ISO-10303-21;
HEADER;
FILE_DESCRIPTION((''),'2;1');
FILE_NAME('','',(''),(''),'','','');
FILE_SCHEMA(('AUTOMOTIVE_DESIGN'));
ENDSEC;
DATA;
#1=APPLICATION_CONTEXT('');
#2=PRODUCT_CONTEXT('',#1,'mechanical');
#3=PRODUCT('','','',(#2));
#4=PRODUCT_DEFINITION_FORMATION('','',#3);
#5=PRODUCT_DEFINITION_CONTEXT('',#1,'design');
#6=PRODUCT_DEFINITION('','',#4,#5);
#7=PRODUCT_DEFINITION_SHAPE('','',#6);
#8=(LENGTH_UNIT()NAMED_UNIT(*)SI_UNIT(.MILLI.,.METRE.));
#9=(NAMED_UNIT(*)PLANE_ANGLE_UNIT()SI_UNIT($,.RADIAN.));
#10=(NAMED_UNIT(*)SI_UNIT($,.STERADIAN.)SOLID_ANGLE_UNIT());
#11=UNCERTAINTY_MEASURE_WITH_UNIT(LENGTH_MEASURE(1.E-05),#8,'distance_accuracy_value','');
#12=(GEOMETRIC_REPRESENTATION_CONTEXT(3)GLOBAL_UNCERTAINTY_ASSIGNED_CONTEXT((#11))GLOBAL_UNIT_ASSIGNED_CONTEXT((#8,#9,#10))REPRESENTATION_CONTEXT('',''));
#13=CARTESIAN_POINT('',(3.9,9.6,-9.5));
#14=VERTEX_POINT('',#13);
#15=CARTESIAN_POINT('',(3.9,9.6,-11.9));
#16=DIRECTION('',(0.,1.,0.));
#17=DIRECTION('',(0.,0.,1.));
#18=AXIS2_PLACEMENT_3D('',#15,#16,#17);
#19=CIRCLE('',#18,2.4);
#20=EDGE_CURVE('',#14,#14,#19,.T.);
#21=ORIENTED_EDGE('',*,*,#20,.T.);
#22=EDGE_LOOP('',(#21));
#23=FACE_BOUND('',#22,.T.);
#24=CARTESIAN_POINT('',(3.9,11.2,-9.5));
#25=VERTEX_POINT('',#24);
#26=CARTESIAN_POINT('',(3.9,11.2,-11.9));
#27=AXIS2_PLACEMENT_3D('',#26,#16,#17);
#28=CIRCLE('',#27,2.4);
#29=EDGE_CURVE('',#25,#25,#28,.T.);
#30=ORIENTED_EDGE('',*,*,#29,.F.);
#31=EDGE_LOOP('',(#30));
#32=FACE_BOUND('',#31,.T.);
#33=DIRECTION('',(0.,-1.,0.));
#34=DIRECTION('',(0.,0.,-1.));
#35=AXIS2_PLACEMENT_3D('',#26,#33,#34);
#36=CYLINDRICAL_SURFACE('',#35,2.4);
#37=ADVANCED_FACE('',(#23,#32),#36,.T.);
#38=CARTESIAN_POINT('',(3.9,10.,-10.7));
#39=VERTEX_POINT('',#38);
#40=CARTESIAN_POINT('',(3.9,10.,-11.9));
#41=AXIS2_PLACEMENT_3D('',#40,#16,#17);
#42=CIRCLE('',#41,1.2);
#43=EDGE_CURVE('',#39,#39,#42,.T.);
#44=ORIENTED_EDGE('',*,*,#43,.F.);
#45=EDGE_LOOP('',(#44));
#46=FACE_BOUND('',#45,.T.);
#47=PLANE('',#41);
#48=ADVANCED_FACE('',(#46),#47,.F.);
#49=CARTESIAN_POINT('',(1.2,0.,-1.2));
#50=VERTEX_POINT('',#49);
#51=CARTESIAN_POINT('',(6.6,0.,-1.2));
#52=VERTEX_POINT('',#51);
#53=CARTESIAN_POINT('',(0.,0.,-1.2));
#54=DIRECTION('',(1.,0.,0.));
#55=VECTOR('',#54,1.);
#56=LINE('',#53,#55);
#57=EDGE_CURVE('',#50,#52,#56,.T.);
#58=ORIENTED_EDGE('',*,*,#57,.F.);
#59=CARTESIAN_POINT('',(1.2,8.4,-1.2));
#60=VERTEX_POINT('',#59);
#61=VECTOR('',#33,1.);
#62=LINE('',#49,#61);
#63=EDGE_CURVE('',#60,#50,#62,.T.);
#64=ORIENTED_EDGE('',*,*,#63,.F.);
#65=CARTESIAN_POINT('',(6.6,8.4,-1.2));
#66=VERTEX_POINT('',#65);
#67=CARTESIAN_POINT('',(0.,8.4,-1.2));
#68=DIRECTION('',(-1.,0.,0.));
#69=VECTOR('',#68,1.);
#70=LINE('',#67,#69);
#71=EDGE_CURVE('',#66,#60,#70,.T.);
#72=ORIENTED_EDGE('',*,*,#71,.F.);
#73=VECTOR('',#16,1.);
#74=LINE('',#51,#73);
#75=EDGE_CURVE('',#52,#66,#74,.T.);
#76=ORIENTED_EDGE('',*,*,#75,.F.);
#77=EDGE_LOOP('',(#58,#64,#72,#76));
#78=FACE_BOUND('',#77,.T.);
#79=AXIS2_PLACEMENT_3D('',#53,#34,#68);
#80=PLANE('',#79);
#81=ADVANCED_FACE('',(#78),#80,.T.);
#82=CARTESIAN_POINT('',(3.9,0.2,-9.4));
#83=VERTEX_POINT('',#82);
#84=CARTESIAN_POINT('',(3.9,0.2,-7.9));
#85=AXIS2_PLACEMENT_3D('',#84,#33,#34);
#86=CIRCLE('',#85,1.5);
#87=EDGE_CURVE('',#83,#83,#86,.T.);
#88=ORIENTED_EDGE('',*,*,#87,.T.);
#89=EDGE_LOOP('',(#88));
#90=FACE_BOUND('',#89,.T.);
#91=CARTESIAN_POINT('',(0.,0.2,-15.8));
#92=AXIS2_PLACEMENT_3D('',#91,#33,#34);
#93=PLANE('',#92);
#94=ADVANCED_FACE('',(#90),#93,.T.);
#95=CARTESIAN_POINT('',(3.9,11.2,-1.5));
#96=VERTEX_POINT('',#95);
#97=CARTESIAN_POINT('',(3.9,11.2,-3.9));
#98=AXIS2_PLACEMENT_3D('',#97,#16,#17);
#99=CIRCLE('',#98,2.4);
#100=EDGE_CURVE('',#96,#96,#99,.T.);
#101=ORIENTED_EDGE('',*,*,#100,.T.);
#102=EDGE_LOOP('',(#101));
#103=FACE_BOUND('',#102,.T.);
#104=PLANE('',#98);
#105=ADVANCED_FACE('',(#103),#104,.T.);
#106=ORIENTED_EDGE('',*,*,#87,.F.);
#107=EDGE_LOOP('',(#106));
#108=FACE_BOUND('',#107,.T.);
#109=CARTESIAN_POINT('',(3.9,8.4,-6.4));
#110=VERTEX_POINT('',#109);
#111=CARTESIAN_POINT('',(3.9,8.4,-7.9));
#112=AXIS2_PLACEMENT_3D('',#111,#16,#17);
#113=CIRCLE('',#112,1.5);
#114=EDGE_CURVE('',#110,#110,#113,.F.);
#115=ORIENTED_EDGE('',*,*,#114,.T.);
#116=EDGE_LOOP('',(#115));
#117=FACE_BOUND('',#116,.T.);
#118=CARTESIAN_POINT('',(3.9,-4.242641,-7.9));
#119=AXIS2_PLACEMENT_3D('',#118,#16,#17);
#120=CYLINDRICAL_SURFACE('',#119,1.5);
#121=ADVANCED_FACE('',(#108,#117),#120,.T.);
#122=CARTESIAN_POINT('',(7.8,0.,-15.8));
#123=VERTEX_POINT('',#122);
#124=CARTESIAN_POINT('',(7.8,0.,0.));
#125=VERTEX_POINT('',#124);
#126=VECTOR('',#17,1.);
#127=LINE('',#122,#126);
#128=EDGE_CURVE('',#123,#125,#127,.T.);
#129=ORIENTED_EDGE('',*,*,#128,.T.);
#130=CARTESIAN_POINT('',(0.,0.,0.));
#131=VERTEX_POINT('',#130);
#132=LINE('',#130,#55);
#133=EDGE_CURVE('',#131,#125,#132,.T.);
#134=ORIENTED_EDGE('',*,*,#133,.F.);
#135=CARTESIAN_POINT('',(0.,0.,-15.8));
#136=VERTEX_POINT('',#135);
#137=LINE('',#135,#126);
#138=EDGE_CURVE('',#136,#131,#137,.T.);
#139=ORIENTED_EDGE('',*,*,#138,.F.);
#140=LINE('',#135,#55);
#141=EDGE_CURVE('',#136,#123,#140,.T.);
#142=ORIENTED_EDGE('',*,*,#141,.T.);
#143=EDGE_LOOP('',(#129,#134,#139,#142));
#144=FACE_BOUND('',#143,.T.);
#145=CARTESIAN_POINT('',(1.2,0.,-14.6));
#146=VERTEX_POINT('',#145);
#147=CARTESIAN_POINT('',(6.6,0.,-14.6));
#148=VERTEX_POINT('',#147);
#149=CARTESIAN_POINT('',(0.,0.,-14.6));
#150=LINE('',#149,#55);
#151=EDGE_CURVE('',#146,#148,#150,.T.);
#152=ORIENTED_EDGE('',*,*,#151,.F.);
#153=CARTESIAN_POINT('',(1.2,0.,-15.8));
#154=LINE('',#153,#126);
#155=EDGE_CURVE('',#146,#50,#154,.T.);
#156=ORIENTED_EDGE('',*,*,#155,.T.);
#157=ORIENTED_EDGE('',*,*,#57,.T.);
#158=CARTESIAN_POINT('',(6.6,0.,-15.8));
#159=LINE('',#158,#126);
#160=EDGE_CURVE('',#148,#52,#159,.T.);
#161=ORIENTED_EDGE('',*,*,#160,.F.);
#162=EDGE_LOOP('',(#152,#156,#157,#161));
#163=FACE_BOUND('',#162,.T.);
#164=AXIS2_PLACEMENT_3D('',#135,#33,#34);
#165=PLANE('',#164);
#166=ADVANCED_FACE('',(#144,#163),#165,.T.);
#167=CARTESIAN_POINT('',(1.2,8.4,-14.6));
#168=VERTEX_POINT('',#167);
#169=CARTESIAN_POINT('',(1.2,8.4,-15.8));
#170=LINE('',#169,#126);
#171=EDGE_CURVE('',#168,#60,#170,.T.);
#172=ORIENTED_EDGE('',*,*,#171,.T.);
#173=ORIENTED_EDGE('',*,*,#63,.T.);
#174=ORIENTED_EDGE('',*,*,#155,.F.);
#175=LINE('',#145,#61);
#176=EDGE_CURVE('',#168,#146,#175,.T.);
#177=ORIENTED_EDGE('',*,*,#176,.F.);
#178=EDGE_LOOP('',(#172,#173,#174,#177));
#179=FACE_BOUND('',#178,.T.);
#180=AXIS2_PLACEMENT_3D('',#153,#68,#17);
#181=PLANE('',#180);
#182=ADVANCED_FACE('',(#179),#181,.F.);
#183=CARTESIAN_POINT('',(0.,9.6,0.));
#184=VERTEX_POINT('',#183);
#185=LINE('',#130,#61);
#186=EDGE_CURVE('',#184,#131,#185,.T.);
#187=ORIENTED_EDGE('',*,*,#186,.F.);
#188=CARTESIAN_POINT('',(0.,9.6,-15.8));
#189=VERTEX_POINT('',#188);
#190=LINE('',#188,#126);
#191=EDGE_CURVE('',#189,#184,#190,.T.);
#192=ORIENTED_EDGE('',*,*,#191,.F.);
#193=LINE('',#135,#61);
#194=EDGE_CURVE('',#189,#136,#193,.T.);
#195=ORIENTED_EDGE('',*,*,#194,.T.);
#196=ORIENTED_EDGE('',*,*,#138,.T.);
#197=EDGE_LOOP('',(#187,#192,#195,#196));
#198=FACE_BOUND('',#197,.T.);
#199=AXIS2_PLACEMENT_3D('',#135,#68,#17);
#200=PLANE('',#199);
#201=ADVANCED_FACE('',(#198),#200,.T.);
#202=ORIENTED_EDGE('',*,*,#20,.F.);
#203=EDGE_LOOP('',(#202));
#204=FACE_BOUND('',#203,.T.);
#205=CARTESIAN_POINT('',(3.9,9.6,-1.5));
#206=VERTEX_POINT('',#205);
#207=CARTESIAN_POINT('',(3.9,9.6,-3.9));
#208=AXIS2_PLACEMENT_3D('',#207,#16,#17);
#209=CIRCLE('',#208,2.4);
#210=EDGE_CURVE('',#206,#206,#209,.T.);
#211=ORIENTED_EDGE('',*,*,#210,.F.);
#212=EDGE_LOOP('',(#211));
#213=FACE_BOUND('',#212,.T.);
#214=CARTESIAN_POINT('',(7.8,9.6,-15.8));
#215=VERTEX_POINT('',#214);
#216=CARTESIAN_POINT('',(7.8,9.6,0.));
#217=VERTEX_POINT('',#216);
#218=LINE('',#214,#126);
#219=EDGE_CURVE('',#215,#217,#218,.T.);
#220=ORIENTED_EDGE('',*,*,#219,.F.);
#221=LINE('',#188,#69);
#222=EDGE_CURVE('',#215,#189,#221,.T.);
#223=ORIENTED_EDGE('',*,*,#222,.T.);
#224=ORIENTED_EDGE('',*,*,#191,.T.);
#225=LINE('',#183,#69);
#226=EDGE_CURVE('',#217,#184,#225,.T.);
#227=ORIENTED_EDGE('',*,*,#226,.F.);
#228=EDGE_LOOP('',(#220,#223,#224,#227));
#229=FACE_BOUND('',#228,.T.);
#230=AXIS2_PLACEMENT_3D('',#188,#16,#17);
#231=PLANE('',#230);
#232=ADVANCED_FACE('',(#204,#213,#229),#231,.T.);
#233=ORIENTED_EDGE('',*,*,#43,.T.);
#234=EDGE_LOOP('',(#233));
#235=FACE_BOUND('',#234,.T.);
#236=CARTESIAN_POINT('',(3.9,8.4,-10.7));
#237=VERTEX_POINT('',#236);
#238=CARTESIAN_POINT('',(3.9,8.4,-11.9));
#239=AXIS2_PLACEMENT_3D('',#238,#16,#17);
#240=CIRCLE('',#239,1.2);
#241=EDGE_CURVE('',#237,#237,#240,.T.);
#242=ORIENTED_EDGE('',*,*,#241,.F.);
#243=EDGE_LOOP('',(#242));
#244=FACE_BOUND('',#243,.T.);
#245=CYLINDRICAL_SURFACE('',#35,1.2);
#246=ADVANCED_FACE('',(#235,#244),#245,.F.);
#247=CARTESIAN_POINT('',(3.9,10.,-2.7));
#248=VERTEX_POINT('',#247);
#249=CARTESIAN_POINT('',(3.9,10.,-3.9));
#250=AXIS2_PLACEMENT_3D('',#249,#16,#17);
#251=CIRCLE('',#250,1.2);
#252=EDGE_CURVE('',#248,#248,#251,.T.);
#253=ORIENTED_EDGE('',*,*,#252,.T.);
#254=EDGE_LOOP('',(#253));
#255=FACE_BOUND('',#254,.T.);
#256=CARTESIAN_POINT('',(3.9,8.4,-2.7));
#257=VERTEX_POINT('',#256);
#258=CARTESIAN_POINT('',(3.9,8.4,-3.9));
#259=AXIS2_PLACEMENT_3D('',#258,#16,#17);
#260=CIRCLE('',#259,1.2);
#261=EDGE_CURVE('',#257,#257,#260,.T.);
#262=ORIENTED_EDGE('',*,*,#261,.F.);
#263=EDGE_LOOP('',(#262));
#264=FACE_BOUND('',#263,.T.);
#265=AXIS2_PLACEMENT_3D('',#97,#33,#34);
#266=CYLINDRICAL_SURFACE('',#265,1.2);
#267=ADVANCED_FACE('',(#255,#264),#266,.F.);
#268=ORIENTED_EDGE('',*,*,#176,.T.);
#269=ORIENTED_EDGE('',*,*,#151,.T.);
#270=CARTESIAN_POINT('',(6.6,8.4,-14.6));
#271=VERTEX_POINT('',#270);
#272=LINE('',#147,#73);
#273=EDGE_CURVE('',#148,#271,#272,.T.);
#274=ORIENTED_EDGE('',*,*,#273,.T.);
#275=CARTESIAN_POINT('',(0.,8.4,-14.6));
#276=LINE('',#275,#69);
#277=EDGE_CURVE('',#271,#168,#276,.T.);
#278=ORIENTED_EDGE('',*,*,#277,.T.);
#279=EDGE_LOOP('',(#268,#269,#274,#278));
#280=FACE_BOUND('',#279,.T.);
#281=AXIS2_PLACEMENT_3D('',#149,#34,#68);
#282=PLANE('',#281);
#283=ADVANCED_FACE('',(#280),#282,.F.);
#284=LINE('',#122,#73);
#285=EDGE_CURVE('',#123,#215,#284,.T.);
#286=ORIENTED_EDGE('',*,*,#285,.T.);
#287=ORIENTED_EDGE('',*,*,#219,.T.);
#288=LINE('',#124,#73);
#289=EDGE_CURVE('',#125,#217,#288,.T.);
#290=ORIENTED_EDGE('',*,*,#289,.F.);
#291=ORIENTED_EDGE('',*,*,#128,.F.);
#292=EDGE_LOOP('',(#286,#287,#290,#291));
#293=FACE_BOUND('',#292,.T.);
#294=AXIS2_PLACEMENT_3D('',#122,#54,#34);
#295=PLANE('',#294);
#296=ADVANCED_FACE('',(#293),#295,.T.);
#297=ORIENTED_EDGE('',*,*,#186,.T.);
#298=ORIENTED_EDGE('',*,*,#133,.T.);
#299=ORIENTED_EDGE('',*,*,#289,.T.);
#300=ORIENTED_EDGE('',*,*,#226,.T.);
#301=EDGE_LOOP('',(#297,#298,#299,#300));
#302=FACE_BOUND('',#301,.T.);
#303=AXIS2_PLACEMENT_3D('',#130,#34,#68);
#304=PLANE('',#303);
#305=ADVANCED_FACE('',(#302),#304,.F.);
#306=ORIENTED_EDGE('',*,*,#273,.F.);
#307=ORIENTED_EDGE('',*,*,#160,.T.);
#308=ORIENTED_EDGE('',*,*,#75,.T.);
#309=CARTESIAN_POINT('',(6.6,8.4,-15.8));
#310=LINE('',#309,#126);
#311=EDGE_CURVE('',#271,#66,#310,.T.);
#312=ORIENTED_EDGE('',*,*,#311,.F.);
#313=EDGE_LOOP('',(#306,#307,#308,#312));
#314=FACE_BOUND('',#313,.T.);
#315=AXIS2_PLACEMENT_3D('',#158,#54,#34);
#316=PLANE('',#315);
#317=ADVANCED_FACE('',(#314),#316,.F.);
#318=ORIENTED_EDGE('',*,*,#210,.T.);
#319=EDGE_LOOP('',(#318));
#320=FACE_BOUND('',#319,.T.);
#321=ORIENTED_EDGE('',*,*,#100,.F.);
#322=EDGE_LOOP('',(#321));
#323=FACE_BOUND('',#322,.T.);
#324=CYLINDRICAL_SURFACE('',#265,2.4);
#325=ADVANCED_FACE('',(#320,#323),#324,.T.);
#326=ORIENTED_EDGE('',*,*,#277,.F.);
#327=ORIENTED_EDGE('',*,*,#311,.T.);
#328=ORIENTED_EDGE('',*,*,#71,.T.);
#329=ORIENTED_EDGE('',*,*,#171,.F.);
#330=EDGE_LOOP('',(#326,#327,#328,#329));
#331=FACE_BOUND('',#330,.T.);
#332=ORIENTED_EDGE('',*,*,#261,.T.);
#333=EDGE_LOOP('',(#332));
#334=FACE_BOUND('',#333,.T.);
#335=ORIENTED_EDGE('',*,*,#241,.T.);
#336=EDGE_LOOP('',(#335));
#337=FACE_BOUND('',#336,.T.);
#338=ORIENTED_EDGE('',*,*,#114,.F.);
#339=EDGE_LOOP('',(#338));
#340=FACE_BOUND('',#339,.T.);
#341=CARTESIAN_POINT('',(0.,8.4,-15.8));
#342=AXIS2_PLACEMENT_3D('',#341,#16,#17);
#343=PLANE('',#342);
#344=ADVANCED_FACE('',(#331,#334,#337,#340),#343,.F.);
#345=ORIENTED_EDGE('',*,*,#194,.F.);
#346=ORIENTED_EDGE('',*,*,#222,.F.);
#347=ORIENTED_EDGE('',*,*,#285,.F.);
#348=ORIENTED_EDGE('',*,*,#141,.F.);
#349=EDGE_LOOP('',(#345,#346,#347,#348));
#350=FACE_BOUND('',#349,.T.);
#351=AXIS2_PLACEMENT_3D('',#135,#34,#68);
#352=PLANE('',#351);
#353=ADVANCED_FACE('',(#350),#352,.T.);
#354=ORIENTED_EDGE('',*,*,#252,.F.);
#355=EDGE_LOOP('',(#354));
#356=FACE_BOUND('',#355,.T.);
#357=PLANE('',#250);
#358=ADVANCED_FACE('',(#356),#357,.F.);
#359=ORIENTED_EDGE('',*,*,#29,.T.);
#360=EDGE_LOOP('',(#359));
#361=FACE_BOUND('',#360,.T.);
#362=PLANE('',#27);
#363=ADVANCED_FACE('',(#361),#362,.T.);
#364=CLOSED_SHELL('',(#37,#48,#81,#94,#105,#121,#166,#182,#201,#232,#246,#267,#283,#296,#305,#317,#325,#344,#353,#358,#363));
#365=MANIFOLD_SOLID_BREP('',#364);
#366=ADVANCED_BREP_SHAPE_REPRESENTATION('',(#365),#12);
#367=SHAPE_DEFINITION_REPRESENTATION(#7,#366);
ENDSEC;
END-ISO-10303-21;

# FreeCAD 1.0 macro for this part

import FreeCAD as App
import Part
import Sketcher
Q = App.Units.Quantity


def faces_at(feature, points):
    """Names of the faces that lie closest to the given points."""
    faces = feature.Shape.Faces
    near = lambda p: min(range(len(faces)), key=lambda i: faces[i].distToShape(Part.Vertex(*p))[0])
    return sorted({f"Face{near(p) + 1}" for p in points})

doc = App.newDocument("Part")
params = doc.addObject("Spreadsheet::Sheet", "Params")
for row, (alias, value) in enumerate([
    ("sketch1_width", "7.8 mm"),
    ("sketch1_height", "9.6 mm"),
    ("pad1_length", "15.8 mm"),
    ("sketch2_diameter", "4.8 mm"),
    ("pad2_length", "1.6 mm"),
    ("linearpattern_pitch", "8 mm"),
    ("thickness_wall", "1.2 mm"),
    ("sketch3_diameter", "3 mm"),
    ("pad3_length", "8.2 mm"),
], start=1):
    params.set(f"A{row}", alias)
    params.set(f"B{row}", "=" + value)
    params.setAlias(f"B{row}", alias)

body = doc.addObject("PartDesign::Body", "Body")

# Sketch on XY plane
sketch1 = body.newObject("Sketcher::SketchObject", "Sketch")
sketch1.AttachmentSupport = (doc.getObject("XY_Plane"), [""])
sketch1.MapMode = "FlatFace"
sketch1.addGeometry([
    Part.LineSegment(App.Vector(0, 10, 0), App.Vector(0, 0, 0)),
    Part.LineSegment(App.Vector(0, 0, 0), App.Vector(8, 0, 0)),
    Part.LineSegment(App.Vector(8, 0, 0), App.Vector(8, 10, 0)),
    Part.LineSegment(App.Vector(8, 10, 0), App.Vector(0, 10, 0)),
], False)
sketch1.addConstraint([
    Sketcher.Constraint("Coincident", 0, 2, 1, 1),
    Sketcher.Constraint("Coincident", 1, 2, 2, 1),
    Sketcher.Constraint("Coincident", 2, 2, 3, 1),
    Sketcher.Constraint("Coincident", 3, 2, 0, 1),
    Sketcher.Constraint("Vertical", 0),
    Sketcher.Constraint("Horizontal", 1),
    Sketcher.Constraint("Vertical", 2),
    Sketcher.Constraint("Horizontal", 3),
    Sketcher.Constraint("Coincident", 0, 2, -1, 1),
    Sketcher.Constraint("DistanceX", 1, 1, 1, 2, Q("7.8 mm")),
    Sketcher.Constraint("DistanceY", 0, 2, 0, 1, Q("9.6 mm")),
])
sketch1.setExpression("Constraints[9]", "Params.sketch1_width")
sketch1.setExpression("Constraints[10]", "Params.sketch1_height")
pad1 = body.newObject("PartDesign::Pad", "Pad")
pad1.Profile = sketch1
pad1.setExpression("Length", "Params.pad1_length")
pad1.Reversed = True

# Sketch on XZ plane
sketch2 = body.newObject("Sketcher::SketchObject", "Sketch001")
sketch2.AttachmentSupport = (doc.getObject("XZ_Plane"), [""])
sketch2.MapMode = "FlatFace"
sketch2.AttachmentOffset = App.Placement(App.Vector(0, 0, -9.6), App.Rotation())
sketch2.addGeometry(Part.Circle(App.Vector(3.9, -3.9, 0), App.Vector(0, 0, 1), 2.4), False)
sketch2.addConstraint([
    Sketcher.Constraint("Diameter", 0, Q("4.8 mm")),
    Sketcher.Constraint("DistanceX", -1, 1, 0, 3, Q("3.9 mm")),
    Sketcher.Constraint("DistanceY", 0, 3, -1, 1, Q("3.9 mm")),
])
sketch2.setExpression("Constraints[0]", "Params.sketch2_diameter")
pad2 = body.newObject("PartDesign::Pad", "Pad001")
pad2.Profile = sketch2
pad2.setExpression("Length", "Params.pad2_length")
pad2.Reversed = True
doc.recompute()

linearpattern = body.newObject("PartDesign::LinearPattern", "LinearPattern")
linearpattern.Originals = [pad2]
linearpattern.Direction = (doc.getObject("Z_Axis"), [""])
linearpattern.Mode = "offset"
linearpattern.setExpression("Offset", "Params.linearpattern_pitch")
linearpattern.Occurrences = 2
linearpattern.Reversed = True
body.Tip = linearpattern
doc.recompute()

thickness = body.newObject("PartDesign::Thickness", "Thickness")
thickness.Base = (linearpattern, faces_at(linearpattern, [(3.9, 0, -7.9)]))
thickness.setExpression("Value", "Params.thickness_wall")
thickness.Reversed = True
thickness.Join = "Intersection"

# Sketch on XZ plane
sketch3 = body.newObject("Sketcher::SketchObject", "Sketch002")
sketch3.AttachmentSupport = (doc.getObject("XZ_Plane"), [""])
sketch3.MapMode = "FlatFace"
sketch3.AttachmentOffset = App.Placement(App.Vector(0, 0, -8.4), App.Rotation())
sketch3.addGeometry(Part.Circle(App.Vector(3.9, -7.9, 0), App.Vector(0, 0, 1), 1.5), False)
sketch3.addConstraint([
    Sketcher.Constraint("Diameter", 0, Q("3 mm")),
    Sketcher.Constraint("DistanceX", -1, 1, 0, 3, Q("3.9 mm")),
    Sketcher.Constraint("DistanceY", 0, 3, -1, 1, Q("7.9 mm")),
])
sketch3.setExpression("Constraints[0]", "Params.sketch3_diameter")
pad3 = body.newObject("PartDesign::Pad", "Pad002")
pad3.Profile = sketch3
pad3.setExpression("Length", "Params.pad3_length")

doc.recompute()
